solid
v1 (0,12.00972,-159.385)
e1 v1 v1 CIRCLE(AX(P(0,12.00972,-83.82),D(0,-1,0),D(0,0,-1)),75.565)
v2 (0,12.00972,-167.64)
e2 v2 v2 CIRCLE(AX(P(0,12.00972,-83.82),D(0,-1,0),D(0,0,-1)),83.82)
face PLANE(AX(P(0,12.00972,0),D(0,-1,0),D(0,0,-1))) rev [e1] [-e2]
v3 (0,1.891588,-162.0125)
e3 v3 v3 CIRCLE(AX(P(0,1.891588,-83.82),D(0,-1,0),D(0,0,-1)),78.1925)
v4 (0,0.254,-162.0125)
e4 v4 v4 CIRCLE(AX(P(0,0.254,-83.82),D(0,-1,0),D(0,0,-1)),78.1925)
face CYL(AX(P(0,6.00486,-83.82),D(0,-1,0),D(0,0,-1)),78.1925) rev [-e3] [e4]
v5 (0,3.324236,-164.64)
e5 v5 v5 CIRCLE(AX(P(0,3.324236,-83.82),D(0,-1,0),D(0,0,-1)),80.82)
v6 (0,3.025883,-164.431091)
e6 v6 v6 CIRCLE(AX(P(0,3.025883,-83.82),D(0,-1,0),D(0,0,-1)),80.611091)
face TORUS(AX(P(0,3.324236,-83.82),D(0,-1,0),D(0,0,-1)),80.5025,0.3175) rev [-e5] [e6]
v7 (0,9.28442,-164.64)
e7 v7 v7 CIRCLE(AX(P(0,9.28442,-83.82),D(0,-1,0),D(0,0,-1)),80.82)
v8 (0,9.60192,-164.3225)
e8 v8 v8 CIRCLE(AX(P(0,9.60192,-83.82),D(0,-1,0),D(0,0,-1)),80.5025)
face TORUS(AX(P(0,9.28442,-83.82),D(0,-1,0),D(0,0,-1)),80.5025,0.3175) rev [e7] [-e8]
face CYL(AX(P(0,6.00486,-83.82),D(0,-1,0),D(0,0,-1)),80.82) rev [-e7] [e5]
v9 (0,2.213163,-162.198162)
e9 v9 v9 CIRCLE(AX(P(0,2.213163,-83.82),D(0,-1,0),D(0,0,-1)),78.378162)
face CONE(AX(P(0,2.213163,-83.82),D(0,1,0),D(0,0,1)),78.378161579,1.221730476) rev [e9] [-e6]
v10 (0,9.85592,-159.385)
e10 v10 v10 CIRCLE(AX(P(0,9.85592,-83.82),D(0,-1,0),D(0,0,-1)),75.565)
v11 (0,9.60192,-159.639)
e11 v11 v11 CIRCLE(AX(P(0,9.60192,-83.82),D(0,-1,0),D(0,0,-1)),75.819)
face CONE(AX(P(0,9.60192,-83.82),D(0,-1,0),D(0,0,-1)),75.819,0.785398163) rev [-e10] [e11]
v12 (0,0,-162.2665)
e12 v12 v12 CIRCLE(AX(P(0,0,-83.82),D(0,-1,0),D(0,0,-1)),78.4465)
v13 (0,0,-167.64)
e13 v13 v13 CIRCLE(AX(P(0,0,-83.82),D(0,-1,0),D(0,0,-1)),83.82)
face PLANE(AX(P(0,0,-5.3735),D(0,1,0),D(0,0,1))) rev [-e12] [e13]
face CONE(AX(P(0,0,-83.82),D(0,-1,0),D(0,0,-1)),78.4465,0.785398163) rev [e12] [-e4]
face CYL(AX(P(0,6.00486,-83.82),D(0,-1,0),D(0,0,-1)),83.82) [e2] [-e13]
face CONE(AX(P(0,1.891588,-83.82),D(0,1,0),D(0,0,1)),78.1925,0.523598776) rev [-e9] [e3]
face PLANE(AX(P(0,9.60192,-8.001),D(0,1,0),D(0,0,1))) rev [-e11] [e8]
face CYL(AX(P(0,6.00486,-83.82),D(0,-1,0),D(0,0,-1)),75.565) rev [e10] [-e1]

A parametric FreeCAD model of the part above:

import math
import FreeCAD as App
import Part
import Sketcher
from FreeCAD import Vector
Q = App.Units.Quantity

doc = App.newDocument("Part")
params = doc.addObject("Spreadsheet::Sheet", "Params")
for row, (alias, value) in enumerate([
    ("sketch1_height", "0.325 in"),
    ("revolution_angle", "360 deg"),
], start=1):
    params.set(f"A{row}", alias)
    params.set(f"B{row}", "=" + value)
    params.setAlias(f"B{row}", alias)

body = doc.addObject("PartDesign::Body", "Body")

sketch1 = doc.addObject("Sketcher::SketchObject", "Sketch")
body.addObject(sketch1)
sketch1.AttachmentSupport = (doc.YZ_Plane, [""])
sketch1.MapMode = "FlatFace"
sketch1.addGeometry([
    Part.LineSegment(Vector(9.6, -8, 0), Vector(9.86, -8.26, 0)),
    Part.LineSegment(Vector(9.86, -8.26, 0), Vector(12.01, -8.26, 0)),
    Part.LineSegment(Vector(12.01, -8.26, 0), Vector(12.01, 0, 0)),
    Part.LineSegment(Vector(12.01, 0, 0), Vector(0, 0, 0)),
    Part.LineSegment(Vector(0, 0, 0), Vector(0, -5.37, 0)),
    Part.LineSegment(Vector(0, -5.37, 0), Vector(0.25, -5.63, 0)),
    Part.LineSegment(Vector(0.25, -5.63, 0), Vector(1.89, -5.63, 0)),
    Part.LineSegment(Vector(1.89, -5.63, 0), Vector(2.21, -5.44, 0)),
    Part.LineSegment(Vector(2.21, -5.44, 0), Vector(3.03, -3.21, 0)),
    Part.ArcOfCircle(Part.Circle(Vector(3.32, -3.32, 0), Vector(0, 0, 1), 0.32), math.radians(90), math.radians(160)),
    Part.LineSegment(Vector(3.32, -3, 0), Vector(9.28, -3, 0)),
    Part.ArcOfCircle(Part.Circle(Vector(9.28, -3.32, 0), Vector(0, 0, 1), 0.32), math.radians(0), math.radians(90)),
    Part.LineSegment(Vector(9.6, -3.32, 0), Vector(9.6, -8, 0)),
], False)
sketch1.addGeometry(Part.LineSegment(Vector(0, -83.82, 0), Vector(12.01, -83.82, 0)), True)
sketch1.addConstraint([
    Sketcher.Constraint("Coincident", 0, 2, 1, 1),
    Sketcher.Constraint("Coincident", 1, 2, 2, 1),
    Sketcher.Constraint("Coincident", 2, 2, 3, 1),
    Sketcher.Constraint("Coincident", 3, 2, 4, 1),
    Sketcher.Constraint("Coincident", 4, 2, 5, 1),
    Sketcher.Constraint("Coincident", 5, 2, 6, 1),
    Sketcher.Constraint("Coincident", 6, 2, 7, 1),
    Sketcher.Constraint("Coincident", 7, 2, 8, 1),
    Sketcher.Constraint("Tangent", 8, 2, 9, 2),
    Sketcher.Constraint("Tangent", 9, 1, 10, 1),
    Sketcher.Constraint("Tangent", 10, 2, 11, 2),
    Sketcher.Constraint("Tangent", 11, 1, 12, 1),
    Sketcher.Constraint("Coincident", 12, 2, 0, 1),
    Sketcher.Constraint("Horizontal", 1),
    Sketcher.Constraint("Vertical", 2),
    Sketcher.Constraint("Horizontal", 3),
    Sketcher.Constraint("Vertical", 4),
    Sketcher.Constraint("Horizontal", 6),
    Sketcher.Constraint("Horizontal", 10),
    Sketcher.Constraint("Vertical", 12),
    Sketcher.Constraint("Horizontal", 13),
    Sketcher.Constraint("Coincident", 3, 2, -1, 1),
    Sketcher.Constraint("Equal", 9, 11),
    Sketcher.Constraint("PointOnObject", 13, 1, -2),
    Sketcher.Constraint("Parallel", 0, 5),
    Sketcher.Constraint("Vertical", 2, 2, 13, 2),
    Sketcher.Constraint("Equal", 0, 5),
    Sketcher.Constraint("Angle", 0, Q("-45 deg")),
    Sketcher.Constraint("Angle", 7, Q("30 deg")),
    Sketcher.Constraint("Angle", 8, Q("70 deg")),
    Sketcher.Constraint("DistanceY", 13, 1, -1, 1, Q("3.3 in")),
    Sketcher.Constraint("Radius", 9, Q("0.0125 in")),
    Sketcher.Constraint("DistanceY", 2, 1, 2, 2, Q("0.325 in")),
    Sketcher.Constraint("DistanceX", -1, 1, 5, 2, Q("0.01 in")),
    Sketcher.Constraint("DistanceX", 1, 1, 1, 2, Q("2.1538 mm")),
    Sketcher.Constraint("DistanceY", 4, 2, 4, 1, Q("5.3735 mm")),
    Sketcher.Constraint("DistanceY", 12, 2, 12, 1, Q("4.6835 mm")),
    Sketcher.Constraint("DistanceX", 3, 2, 3, 1, Q("12.00972 mm")),
    Sketcher.Constraint("DistanceX", 6, 1, 6, 2, Q("1.637588 mm")),
    Sketcher.Constraint("DistanceX", 10, 1, 10, 2, Q("5.960184 mm")),
])
sketch1.setExpression("Constraints[32]", "Params.sketch1_height")
revolution = doc.addObject("PartDesign::Revolution", "Revolution")
body.addObject(revolution)
revolution.Profile = sketch1
revolution.ReferenceAxis = (sketch1, ["Axis0"])
revolution.setExpression("Angle", "Params.revolution_angle")

doc.recompute()
